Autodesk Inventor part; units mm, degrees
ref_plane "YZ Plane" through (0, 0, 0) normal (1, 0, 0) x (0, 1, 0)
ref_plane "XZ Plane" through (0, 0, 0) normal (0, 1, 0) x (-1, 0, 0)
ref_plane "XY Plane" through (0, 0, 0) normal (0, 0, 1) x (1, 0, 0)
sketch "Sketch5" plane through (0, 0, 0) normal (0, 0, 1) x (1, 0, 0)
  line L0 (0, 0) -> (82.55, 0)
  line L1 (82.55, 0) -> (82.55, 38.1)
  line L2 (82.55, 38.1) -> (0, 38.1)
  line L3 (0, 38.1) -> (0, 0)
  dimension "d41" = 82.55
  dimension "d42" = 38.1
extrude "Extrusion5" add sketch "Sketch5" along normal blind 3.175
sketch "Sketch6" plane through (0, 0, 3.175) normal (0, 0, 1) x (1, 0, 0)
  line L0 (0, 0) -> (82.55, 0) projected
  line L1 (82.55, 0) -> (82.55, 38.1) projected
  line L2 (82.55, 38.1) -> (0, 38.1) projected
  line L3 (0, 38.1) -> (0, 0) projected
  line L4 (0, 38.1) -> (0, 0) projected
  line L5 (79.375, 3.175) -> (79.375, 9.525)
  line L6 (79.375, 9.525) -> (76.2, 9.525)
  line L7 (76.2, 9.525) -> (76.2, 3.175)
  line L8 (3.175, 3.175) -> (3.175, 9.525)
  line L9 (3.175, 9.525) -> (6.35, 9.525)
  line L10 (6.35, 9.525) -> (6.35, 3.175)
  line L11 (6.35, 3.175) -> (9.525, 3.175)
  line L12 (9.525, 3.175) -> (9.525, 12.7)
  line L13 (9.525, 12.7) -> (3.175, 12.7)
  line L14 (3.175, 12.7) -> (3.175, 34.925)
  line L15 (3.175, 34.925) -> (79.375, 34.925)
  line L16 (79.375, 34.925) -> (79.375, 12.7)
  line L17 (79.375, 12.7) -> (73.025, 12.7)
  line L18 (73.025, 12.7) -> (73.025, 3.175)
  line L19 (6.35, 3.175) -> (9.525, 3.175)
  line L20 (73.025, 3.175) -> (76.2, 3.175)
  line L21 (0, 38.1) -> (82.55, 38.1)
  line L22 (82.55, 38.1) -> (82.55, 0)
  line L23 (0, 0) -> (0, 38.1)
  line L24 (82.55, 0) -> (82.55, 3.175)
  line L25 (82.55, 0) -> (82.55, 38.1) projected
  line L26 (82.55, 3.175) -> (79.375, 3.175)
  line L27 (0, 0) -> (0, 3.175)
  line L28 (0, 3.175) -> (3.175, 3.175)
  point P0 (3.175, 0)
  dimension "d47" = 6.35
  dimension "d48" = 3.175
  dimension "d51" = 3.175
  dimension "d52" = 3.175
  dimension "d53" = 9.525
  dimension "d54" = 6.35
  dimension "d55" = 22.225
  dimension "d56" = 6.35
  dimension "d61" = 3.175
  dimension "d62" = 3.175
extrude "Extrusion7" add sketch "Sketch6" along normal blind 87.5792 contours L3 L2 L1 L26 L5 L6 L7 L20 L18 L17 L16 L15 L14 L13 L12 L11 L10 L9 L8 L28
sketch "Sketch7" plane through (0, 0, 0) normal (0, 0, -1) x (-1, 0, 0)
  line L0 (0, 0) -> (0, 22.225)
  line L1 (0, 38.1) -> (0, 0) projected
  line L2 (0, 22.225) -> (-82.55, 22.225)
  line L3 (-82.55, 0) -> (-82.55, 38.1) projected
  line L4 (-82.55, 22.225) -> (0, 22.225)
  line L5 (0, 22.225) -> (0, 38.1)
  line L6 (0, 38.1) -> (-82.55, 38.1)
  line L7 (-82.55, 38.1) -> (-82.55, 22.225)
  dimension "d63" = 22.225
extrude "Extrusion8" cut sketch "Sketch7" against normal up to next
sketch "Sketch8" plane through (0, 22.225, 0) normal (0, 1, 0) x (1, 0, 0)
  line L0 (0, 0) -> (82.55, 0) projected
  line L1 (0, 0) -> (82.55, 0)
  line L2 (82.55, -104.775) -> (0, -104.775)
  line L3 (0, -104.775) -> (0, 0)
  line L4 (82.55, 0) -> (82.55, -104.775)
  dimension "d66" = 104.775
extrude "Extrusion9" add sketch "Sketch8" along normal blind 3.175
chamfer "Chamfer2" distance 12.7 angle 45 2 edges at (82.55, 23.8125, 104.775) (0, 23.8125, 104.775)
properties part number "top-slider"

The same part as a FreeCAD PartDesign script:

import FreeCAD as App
import Part
import Sketcher

V = App.Vector
Q = App.Units.Quantity


def edges_at(feature, points):
    """Names of the edges that pass closest to the given points."""
    edges = feature.Shape.Edges
    near = lambda p: min(range(len(edges)), key=lambda i: edges[i].distToShape(Part.Vertex(*p))[0])
    return sorted({f"Edge{near(p) + 1}" for p in points})

doc = App.newDocument("Part")
params = doc.addObject("Spreadsheet::Sheet", "Params")
for row, (alias, value) in enumerate([
    ("sketch1_height", "1.5 in"),
    ("sketch1_width", "3.25 in"),
    ("pad1_length", "0.125 in"),
    ("sketch2_width", "0.25 in"),
    ("sketch2_width2", "3 in"),
    ("sketch2_height", "0.375 in"),
    ("sketch2_height2", "0.875 in"),
    ("pad2_length", "3.448 in"),
    ("sketch3_width", "3.25 in"),
    ("pocket1_length", "3.573 in"),
    ("sketch4_height", "4.125 in"),
    ("sketch4_width", "3.25 in"),
    ("pad3_length", "0.125 in"),
    ("chamfer_size", "0.5 in"),
], start=1):
    params.set(f"A{row}", alias)
    params.set(f"B{row}", "=" + value)
    params.setAlias(f"B{row}", alias)

body = doc.addObject("PartDesign::Body", "Body")

# Sketch on XY plane
sketch1 = body.newObject("Sketcher::SketchObject", "Sketch")
sketch1.AttachmentSupport = (doc.getObject("XY_Plane"), [""])
sketch1.MapMode = "FlatFace"
sketch1.addGeometry([
    Part.LineSegment(V(0, 38, 0), V(0, 0, 0)),
    Part.LineSegment(V(0, 0, 0), V(83, 0, 0)),
    Part.LineSegment(V(83, 0, 0), V(83, 38, 0)),
    Part.LineSegment(V(83, 38, 0), V(0, 38, 0)),
], False)
sketch1.addConstraint([
    Sketcher.Constraint("Coincident", 0, 2, 1, 1),
    Sketcher.Constraint("Coincident", 1, 2, 2, 1),
    Sketcher.Constraint("Coincident", 2, 2, 3, 1),
    Sketcher.Constraint("Coincident", 3, 2, 0, 1),
    Sketcher.Constraint("Vertical", 0),
    Sketcher.Constraint("Horizontal", 1),
    Sketcher.Constraint("Vertical", 2),
    Sketcher.Constraint("Horizontal", 3),
    Sketcher.Constraint("Coincident", 0, 2, -1, 1),
    Sketcher.Constraint("DistanceY", 0, 2, 0, 1, Q("1.5 in")),
    Sketcher.Constraint("DistanceX", 1, 1, 1, 2, Q("3.25 in")),
])
sketch1.setExpression("Constraints[9]", "Params.sketch1_height")
sketch1.setExpression("Constraints[10]", "Params.sketch1_width")
pad1 = body.newObject("PartDesign::Pad", "Pad")
pad1.Profile = sketch1
pad1.setExpression("Length", "Params.pad1_length")

# Sketch on XY plane
sketch2 = body.newObject("Sketcher::SketchObject", "Sketch001")
sketch2.AttachmentSupport = (doc.getObject("XY_Plane"), [""])
sketch2.MapMode = "FlatFace"
sketch2.AttachmentOffset = App.Placement(V(0, 0, 0.125 * 25.4), App.Rotation())
sketch2.addGeometry([
    Part.LineSegment(V(0, 38.1, 0), V(0, 3.2, 0)),  # 0
    Part.LineSegment(V(0, 3.2, 0), V(3.2, 3.2, 0)),  # 1
    Part.LineSegment(V(3.2, 3.2, 0), V(3.2, 9.5, 0)),  # 2
    Part.LineSegment(V(3.2, 9.5, 0), V(6.3, 9.5, 0)),  # 3
    Part.LineSegment(V(6.3, 9.5, 0), V(6.3, 3.2, 0)),  # 4
    Part.LineSegment(V(6.3, 3.2, 0), V(9.5, 3.2, 0)),  # 5
    Part.LineSegment(V(9.5, 3.2, 0), V(9.5, 12.7, 0)),  # 6
    Part.LineSegment(V(9.5, 12.7, 0), V(3.2, 12.7, 0)),  # 7
    Part.LineSegment(V(3.2, 12.7, 0), V(3.2, 34.9, 0)),  # 8
    Part.LineSegment(V(3.2, 34.9, 0), V(79.4, 34.9, 0)),  # 9
    Part.LineSegment(V(79.4, 34.9, 0), V(79.4, 12.7, 0)),  # 10
    Part.LineSegment(V(79.4, 12.7, 0), V(73, 12.7, 0)),  # 11
    Part.LineSegment(V(73, 12.7, 0), V(73, 3.2, 0)),  # 12
    Part.LineSegment(V(73, 3.2, 0), V(76.2, 3.2, 0)),  # 13
    Part.LineSegment(V(76.2, 3.2, 0), V(76.2, 9.5, 0)),  # 14
    Part.LineSegment(V(76.2, 9.5, 0), V(79.4, 9.5, 0)),  # 15
    Part.LineSegment(V(79.4, 9.5, 0), V(79.4, 3.2, 0)),  # 16
    Part.LineSegment(V(79.4, 3.2, 0), V(82.5, 3.2, 0)),  # 17
    Part.LineSegment(V(82.5, 3.2, 0), V(82.5, 38.1, 0)),  # 18
    Part.LineSegment(V(82.5, 38.1, 0), V(0, 38.1, 0)),  # 19
], False)
sketch2.addConstraint([
    Sketcher.Constraint("Coincident", 0, 2, 1, 1),
    Sketcher.Constraint("Coincident", 1, 2, 2, 1),
    Sketcher.Constraint("Coincident", 2, 2, 3, 1),
    Sketcher.Constraint("Coincident", 3, 2, 4, 1),
    Sketcher.Constraint("Coincident", 4, 2, 5, 1),
    Sketcher.Constraint("Coincident", 5, 2, 6, 1),
    Sketcher.Constraint("Coincident", 6, 2, 7, 1),
    Sketcher.Constraint("Coincident", 7, 2, 8, 1),
    Sketcher.Constraint("Coincident", 8, 2, 9, 1),
    Sketcher.Constraint("Coincident", 9, 2, 10, 1),
    Sketcher.Constraint("Coincident", 10, 2, 11, 1),
    Sketcher.Constraint("Coincident", 11, 2, 12, 1),
    Sketcher.Constraint("Coincident", 12, 2, 13, 1),
    Sketcher.Constraint("Coincident", 13, 2, 14, 1),
    Sketcher.Constraint("Coincident", 14, 2, 15, 1),
    Sketcher.Constraint("Coincident", 15, 2, 16, 1),
    Sketcher.Constraint("Coincident", 16, 2, 17, 1),
    Sketcher.Constraint("Coincident", 17, 2, 18, 1),
    Sketcher.Constraint("Coincident", 18, 2, 19, 1),
    Sketcher.Constraint("Coincident", 19, 2, 0, 1),
    Sketcher.Constraint("Vertical", 0),
    Sketcher.Constraint("Horizontal", 1),
    Sketcher.Constraint("Vertical", 2),
    Sketcher.Constraint("Horizontal", 3),
    Sketcher.Constraint("Vertical", 4),
    Sketcher.Constraint("Horizontal", 5),
    Sketcher.Constraint("Vertical", 6),
    Sketcher.Constraint("Horizontal", 7),
    Sketcher.Constraint("Vertical", 8),
    Sketcher.Constraint("Horizontal", 9),
    Sketcher.Constraint("Vertical", 10),
    Sketcher.Constraint("Horizontal", 11),
    Sketcher.Constraint("Vertical", 12),
    Sketcher.Constraint("Horizontal", 13),
    Sketcher.Constraint("Vertical", 14),
    Sketcher.Constraint("Horizontal", 15),
    Sketcher.Constraint("Vertical", 16),
    Sketcher.Constraint("Horizontal", 17),
    Sketcher.Constraint("Vertical", 18),
    Sketcher.Constraint("Horizontal", 19),
    Sketcher.Constraint("PointOnObject", 0, 2, -2),
    Sketcher.Constraint("Horizontal", 1, 2, 4, 2),
    Sketcher.Constraint("Horizontal", 7, 2, 10, 2),
    Sketcher.Constraint("Horizontal", 5, 2, 12, 2),
    Sketcher.Constraint("Horizontal", 3, 2, 14, 2),
    Sketcher.Constraint("Horizontal", 13, 2, 16, 2),
    Sketcher.Constraint("Vertical", 2, 2, 7, 2),
    Sketcher.Constraint("Vertical", 10, 2, 15, 2),
    Sketcher.Constraint("Equal", 1, 3),
    Sketcher.Constraint("Equal", 3, 5),
    Sketcher.Constraint("Equal", 7, 11),
    Sketcher.Constraint("Equal", 5, 13),
    Sketcher.Constraint("Equal", 15, 17),
    Sketcher.Constraint("Equal", 11, 2),
    Sketcher.Constraint("DistanceX", 7, 2, 7, 1, Q("0.25 in")),
    Sketcher.Constraint("DistanceX", 9, 1, 9, 2, Q("3 in")),
    Sketcher.Constraint("DistanceY", 6, 1, 6, 2, Q("0.375 in")),
    Sketcher.Constraint("DistanceY", 8, 1, 8, 2, Q("0.875 in")),
    Sketcher.Constraint("DistanceY", -1, 1, 0, 2, Q("0.125 in")),
    Sketcher.Constraint("DistanceY", 9, 2, 18, 2, Q("0.125 in")),
])
sketch2.setExpression("Constraints[54]", "Params.sketch2_width")
sketch2.setExpression("Constraints[55]", "Params.sketch2_width2")
sketch2.setExpression("Constraints[56]", "Params.sketch2_height")
sketch2.setExpression("Constraints[57]", "Params.sketch2_height2")
pad2 = body.newObject("PartDesign::Pad", "Pad001")
pad2.Profile = sketch2
pad2.setExpression("Length", "Params.pad2_length")

# Sketch on XY plane
sketch3 = body.newObject("Sketcher::SketchObject", "Sketch002")
sketch3.AttachmentSupport = (doc.getObject("XY_Plane"), [""])
sketch3.MapMode = "FlatFace"
sketch3.addGeometry([
    Part.LineSegment(V(0, 22, 0), V(0, 38, 0)),
    Part.LineSegment(V(0, 38, 0), V(83, 38, 0)),
    Part.LineSegment(V(83, 38, 0), V(83, 22, 0)),
    Part.LineSegment(V(83, 22, 0), V(0, 22, 0)),
], False)
sketch3.addConstraint([
    Sketcher.Constraint("Coincident", 0, 2, 1, 1),
    Sketcher.Constraint("Coincident", 1, 2, 2, 1),
    Sketcher.Constraint("Coincident", 2, 2, 3, 1),
    Sketcher.Constraint("Coincident", 3, 2, 0, 1),
    Sketcher.Constraint("Vertical", 0),
    Sketcher.Constraint("Horizontal", 1),
    Sketcher.Constraint("Vertical", 2),
    Sketcher.Constraint("Horizontal", 3),
    Sketcher.Constraint("PointOnObject", 0, 2, -2),
    Sketcher.Constraint("DistanceY", -1, 1, 2, 2, Q("0.875 in")),
    Sketcher.Constraint("DistanceX", 1, 1, 1, 2, Q("3.25 in")),
    Sketcher.Constraint("DistanceY", -1, 1, 0, 2, Q("1.5 in")),
])
sketch3.setExpression("Constraints[10]", "Params.sketch3_width")
pocket1 = body.newObject("PartDesign::Pocket", "Pocket")
pocket1.Profile = sketch3
pocket1.setExpression("Length", "Params.pocket1_length")
pocket1.Reversed = True

# Sketch on XZ plane
sketch4 = body.newObject("Sketcher::SketchObject", "Sketch003")
sketch4.AttachmentSupport = (doc.getObject("XZ_Plane"), [""])
sketch4.MapMode = "FlatFace"
sketch4.AttachmentOffset = App.Placement(V(0, 0, -0.875 * 25.4), App.Rotation())
sketch4.addGeometry([
    Part.LineSegment(V(83, 0, 0), V(0, 0, 0)),
    Part.LineSegment(V(0, 0, 0), V(0, 105, 0)),
    Part.LineSegment(V(0, 105, 0), V(83, 105, 0)),
    Part.LineSegment(V(83, 105, 0), V(83, 0, 0)),
], False)
sketch4.addConstraint([
    Sketcher.Constraint("Coincident", 0, 2, 1, 1),
    Sketcher.Constraint("Coincident", 1, 2, 2, 1),
    Sketcher.Constraint("Coincident", 2, 2, 3, 1),
    Sketcher.Constraint("Coincident", 3, 2, 0, 1),
    Sketcher.Constraint("Horizontal", 0),
    Sketcher.Constraint("Vertical", 1),
    Sketcher.Constraint("Horizontal", 2),
    Sketcher.Constraint("Vertical", 3),
    Sketcher.Constraint("Coincident", 0, 2, -1, 1),
    Sketcher.Constraint("DistanceY", 1, 1, 1, 2, Q("4.125 in")),
    Sketcher.Constraint("DistanceX", 0, 2, 0, 1, Q("3.25 in")),
])
sketch4.setExpression("Constraints[9]", "Params.sketch4_height")
sketch4.setExpression("Constraints[10]", "Params.sketch4_width")
pad3 = body.newObject("PartDesign::Pad", "Pad002")
pad3.Profile = sketch4
pad3.setExpression("Length", "Params.pad3_length")
pad3.Reversed = True
doc.recompute()

chamfer = body.newObject("PartDesign::Chamfer", "Chamfer")
chamfer.Base = (pad3, edges_at(pad3, [(82.55, 23.812, 104.775), (0, 23.812, 104.775)]))
chamfer.setExpression("Size", "Params.chamfer_size")

doc.recompute()
